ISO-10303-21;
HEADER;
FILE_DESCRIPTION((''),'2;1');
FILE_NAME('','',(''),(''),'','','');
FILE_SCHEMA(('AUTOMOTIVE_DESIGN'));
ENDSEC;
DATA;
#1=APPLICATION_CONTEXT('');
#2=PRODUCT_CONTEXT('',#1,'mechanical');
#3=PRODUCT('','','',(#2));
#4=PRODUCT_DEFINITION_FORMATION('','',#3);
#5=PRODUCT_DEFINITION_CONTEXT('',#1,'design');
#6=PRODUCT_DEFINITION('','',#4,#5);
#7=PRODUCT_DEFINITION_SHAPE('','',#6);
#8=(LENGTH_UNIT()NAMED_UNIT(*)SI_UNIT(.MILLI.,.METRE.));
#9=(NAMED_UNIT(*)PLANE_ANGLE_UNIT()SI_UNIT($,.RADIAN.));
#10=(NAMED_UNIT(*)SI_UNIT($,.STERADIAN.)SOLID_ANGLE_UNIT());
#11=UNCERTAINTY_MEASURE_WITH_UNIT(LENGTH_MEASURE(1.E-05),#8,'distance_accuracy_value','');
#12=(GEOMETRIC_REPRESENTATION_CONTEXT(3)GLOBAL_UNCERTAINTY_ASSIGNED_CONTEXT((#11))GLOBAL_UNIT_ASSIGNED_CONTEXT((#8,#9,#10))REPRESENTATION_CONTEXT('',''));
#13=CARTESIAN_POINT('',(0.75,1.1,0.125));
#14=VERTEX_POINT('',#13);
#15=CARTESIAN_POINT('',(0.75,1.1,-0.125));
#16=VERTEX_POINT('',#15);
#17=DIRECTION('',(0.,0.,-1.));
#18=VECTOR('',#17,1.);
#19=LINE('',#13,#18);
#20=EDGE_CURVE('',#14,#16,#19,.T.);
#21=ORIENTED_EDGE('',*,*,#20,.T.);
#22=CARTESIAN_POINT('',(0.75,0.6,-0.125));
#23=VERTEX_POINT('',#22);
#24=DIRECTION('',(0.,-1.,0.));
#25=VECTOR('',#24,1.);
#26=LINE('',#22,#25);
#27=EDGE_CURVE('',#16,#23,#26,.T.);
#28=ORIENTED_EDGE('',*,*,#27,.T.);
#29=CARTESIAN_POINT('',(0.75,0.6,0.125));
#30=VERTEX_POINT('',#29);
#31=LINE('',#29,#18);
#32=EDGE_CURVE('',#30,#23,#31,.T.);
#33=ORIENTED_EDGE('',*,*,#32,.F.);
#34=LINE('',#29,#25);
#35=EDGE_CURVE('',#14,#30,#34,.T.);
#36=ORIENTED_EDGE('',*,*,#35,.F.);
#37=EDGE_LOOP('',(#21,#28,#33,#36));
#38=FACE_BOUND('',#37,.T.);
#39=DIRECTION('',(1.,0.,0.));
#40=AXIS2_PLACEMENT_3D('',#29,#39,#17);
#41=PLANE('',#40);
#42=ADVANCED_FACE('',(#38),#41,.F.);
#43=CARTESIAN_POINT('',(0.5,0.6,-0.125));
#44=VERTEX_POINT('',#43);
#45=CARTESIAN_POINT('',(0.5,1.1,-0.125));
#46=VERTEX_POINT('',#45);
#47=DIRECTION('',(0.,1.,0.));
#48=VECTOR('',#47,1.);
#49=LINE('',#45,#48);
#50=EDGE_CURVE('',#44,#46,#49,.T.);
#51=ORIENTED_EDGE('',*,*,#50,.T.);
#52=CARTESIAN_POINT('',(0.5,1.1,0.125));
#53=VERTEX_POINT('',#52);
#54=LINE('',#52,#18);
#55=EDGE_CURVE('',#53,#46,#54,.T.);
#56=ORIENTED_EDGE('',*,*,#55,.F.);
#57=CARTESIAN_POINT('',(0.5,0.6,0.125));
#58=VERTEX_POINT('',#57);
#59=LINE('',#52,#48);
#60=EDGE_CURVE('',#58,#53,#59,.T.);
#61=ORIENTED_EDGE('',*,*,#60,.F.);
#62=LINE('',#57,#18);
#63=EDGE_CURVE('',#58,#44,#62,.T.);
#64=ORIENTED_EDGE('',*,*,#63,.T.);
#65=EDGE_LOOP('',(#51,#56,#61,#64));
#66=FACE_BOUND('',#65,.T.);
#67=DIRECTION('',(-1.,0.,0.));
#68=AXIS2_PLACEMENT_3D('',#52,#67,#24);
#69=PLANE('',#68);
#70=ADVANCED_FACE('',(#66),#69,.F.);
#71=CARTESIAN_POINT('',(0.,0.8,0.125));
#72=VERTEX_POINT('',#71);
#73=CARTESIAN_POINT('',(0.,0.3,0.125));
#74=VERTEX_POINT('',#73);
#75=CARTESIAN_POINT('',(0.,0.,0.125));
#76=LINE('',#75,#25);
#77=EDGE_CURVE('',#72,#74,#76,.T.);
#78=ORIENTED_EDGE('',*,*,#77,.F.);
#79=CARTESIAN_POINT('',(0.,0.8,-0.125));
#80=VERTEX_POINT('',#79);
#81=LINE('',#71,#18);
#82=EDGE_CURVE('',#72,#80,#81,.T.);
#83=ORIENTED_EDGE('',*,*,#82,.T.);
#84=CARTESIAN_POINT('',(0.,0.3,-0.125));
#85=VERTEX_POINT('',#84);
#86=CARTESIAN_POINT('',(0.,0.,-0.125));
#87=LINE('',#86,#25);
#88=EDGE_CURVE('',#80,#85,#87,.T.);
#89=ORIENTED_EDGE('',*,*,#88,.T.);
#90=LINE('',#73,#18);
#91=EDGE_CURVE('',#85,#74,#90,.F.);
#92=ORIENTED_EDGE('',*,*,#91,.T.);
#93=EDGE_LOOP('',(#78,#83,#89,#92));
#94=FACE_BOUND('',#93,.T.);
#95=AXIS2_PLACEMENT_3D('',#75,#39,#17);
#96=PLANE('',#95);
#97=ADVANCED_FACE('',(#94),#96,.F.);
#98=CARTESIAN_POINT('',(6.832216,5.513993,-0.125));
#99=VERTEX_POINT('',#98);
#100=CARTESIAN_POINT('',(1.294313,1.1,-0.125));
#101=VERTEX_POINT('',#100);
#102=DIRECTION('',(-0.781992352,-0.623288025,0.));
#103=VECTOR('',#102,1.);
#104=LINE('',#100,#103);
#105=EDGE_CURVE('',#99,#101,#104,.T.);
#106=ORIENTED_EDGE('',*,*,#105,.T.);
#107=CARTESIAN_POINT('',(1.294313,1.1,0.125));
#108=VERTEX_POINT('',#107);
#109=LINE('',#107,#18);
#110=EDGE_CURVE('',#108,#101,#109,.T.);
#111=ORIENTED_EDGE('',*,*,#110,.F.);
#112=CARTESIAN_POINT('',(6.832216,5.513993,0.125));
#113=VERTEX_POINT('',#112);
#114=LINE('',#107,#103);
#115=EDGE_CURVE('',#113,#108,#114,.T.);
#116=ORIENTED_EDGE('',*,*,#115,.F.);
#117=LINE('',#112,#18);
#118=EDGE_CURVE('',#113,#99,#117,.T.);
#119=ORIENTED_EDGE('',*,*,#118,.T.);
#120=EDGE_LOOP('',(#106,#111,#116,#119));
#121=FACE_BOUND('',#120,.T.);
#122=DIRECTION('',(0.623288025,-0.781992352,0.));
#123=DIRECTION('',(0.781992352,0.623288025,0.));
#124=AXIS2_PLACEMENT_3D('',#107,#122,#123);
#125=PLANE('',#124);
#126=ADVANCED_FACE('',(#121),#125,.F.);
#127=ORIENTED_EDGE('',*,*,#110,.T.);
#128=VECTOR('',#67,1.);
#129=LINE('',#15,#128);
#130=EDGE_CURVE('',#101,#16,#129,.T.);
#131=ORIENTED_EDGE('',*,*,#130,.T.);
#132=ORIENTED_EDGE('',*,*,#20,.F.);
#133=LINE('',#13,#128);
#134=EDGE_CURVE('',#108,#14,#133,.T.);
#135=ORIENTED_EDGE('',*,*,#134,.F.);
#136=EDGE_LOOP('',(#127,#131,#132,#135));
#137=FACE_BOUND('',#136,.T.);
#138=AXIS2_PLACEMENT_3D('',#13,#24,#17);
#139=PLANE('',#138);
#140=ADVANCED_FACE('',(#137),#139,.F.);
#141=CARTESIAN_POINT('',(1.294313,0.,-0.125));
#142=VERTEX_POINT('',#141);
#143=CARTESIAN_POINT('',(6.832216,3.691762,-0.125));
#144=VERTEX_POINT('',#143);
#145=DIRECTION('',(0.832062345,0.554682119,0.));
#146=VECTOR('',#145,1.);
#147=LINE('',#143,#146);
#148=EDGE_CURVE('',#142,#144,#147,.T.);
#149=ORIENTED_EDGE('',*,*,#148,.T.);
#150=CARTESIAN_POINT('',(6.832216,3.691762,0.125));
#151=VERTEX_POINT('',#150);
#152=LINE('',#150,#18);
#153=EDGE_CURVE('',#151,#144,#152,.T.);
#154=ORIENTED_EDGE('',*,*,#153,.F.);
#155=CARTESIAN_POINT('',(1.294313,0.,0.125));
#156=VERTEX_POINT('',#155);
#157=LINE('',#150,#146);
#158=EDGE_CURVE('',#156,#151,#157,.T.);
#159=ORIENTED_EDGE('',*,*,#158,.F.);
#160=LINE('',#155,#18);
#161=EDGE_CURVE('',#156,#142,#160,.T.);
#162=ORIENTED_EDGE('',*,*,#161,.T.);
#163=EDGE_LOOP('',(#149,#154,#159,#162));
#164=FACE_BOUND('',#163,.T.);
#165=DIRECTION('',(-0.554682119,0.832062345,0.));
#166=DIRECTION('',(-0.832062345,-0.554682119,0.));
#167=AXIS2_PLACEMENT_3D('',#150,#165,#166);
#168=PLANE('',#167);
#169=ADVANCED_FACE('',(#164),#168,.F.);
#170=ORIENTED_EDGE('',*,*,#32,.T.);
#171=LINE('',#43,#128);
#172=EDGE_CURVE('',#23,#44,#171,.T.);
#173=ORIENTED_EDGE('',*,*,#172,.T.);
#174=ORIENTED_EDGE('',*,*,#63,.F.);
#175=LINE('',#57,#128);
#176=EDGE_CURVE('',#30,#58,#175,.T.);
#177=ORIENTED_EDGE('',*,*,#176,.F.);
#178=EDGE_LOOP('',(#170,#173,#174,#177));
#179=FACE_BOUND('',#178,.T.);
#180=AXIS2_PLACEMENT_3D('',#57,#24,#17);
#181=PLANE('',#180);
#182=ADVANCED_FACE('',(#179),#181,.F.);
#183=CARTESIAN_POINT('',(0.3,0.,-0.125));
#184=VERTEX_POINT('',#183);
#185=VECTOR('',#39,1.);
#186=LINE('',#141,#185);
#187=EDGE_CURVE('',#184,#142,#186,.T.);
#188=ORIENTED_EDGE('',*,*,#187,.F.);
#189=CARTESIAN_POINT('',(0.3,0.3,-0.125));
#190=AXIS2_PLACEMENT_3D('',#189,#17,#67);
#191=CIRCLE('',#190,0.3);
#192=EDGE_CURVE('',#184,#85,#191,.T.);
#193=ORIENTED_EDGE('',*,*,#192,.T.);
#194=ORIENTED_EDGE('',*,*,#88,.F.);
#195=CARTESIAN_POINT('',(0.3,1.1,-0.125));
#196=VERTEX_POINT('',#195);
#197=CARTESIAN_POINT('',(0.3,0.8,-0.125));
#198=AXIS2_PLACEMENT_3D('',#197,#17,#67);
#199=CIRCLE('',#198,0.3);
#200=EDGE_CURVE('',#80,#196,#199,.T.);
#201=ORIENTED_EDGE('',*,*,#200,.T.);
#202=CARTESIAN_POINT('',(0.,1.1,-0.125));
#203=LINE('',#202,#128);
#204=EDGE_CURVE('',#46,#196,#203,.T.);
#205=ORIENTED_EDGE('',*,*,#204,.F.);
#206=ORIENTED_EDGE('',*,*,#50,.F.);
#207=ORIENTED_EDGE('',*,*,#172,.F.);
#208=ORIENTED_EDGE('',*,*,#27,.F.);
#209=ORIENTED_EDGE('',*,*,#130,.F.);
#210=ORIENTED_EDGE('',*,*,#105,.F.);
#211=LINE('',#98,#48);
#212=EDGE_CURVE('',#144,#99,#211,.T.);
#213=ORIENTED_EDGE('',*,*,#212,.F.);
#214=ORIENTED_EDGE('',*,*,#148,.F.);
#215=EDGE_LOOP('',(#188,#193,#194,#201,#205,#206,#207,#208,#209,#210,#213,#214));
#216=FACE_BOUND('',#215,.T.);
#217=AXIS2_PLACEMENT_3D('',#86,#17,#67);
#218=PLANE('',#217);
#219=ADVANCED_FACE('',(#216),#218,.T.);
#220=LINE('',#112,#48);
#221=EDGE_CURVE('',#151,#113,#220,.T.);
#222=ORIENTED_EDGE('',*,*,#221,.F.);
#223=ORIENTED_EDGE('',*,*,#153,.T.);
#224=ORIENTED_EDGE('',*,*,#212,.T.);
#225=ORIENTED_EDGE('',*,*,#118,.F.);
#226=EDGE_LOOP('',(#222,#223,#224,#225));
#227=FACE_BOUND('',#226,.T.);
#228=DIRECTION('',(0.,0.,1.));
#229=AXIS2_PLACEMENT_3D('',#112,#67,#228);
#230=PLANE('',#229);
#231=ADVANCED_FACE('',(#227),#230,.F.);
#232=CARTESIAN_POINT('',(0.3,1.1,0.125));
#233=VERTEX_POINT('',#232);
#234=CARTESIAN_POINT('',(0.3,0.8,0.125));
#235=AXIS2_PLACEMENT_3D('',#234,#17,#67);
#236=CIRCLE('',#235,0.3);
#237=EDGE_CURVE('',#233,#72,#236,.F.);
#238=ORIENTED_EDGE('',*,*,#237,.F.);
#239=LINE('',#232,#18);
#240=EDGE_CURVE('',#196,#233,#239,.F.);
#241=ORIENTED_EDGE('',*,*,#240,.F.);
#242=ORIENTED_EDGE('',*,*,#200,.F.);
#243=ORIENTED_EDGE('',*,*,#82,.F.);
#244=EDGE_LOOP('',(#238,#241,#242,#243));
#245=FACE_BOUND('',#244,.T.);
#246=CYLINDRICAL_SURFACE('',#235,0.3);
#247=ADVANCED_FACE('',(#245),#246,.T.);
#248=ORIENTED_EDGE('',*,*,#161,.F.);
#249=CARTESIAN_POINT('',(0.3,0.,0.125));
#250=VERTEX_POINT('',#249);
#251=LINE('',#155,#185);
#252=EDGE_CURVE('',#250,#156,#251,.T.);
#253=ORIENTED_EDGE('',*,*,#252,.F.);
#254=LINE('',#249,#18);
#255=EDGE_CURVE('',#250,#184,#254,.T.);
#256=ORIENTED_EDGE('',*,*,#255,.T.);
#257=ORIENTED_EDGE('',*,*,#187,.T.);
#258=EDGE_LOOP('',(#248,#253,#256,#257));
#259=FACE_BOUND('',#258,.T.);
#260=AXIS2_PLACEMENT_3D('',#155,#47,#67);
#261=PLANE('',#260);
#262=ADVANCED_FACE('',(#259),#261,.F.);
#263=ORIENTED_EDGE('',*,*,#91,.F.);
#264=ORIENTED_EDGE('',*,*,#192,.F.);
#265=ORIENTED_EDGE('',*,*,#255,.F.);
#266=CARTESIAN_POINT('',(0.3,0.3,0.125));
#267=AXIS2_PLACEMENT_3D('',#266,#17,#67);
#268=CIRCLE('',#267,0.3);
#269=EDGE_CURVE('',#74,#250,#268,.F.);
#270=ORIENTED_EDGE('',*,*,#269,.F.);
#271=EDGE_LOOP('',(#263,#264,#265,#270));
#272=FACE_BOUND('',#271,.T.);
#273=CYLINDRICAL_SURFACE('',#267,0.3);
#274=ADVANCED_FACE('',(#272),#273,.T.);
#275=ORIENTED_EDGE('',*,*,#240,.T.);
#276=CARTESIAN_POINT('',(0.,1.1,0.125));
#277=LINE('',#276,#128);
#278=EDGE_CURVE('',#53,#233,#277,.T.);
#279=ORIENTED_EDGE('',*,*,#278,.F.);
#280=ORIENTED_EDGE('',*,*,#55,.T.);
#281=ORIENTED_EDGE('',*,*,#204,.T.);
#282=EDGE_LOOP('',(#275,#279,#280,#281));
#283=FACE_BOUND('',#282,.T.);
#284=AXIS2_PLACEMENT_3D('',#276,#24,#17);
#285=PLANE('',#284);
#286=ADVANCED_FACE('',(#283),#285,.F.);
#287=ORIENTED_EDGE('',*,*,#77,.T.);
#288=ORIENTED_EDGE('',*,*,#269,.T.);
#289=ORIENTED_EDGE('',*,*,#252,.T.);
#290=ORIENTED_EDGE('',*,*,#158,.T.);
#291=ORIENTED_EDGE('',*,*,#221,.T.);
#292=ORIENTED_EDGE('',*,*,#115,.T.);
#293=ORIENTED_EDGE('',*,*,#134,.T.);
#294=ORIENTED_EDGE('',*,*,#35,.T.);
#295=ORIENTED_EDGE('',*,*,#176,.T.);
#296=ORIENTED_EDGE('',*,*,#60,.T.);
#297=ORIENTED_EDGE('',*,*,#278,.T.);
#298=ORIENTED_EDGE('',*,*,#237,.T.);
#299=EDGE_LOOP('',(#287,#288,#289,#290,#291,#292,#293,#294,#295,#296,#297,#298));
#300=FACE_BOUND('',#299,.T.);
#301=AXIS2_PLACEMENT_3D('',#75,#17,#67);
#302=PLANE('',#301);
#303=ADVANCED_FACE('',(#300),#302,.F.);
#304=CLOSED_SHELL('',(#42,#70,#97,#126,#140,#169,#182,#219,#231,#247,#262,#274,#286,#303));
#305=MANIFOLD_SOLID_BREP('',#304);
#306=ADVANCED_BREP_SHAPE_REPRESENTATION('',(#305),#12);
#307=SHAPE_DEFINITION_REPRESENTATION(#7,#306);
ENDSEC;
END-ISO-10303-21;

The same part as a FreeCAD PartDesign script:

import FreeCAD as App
import Part
import Sketcher
from FreeCAD import Vector


def edges_at(feature, points):
    """Names of the edges that pass closest to the given points."""
    edges = feature.Shape.Edges
    near = lambda p: min(range(len(edges)), key=lambda i: edges[i].distToShape(Part.Vertex(*p))[0])
    return sorted({f"Edge{near(p) + 1}" for p in points})

doc = App.newDocument("Part")
body = doc.addObject("PartDesign::Body", "Body")

# Sketch on XY plane
sketch1 = body.newObject("Sketcher::SketchObject", "Sketch")
sketch1.AttachmentSupport = (doc.getObject("XY_Plane"), [""])
sketch1.MapMode = "FlatFace"
sketch1.addGeometry([
    Part.LineSegment(Vector(0, 1.1, 0), Vector(0, 0, 0)),  # 0
    Part.LineSegment(Vector(0, 0, 0), Vector(1.29, 0, 0)),  # 1
    Part.LineSegment(Vector(1.29, 0, 0), Vector(6.83, 3.69, 0)),  # 2
    Part.LineSegment(Vector(6.83, 3.69, 0), Vector(6.83, 5.51, 0)),  # 3
    Part.LineSegment(Vector(6.83, 5.51, 0), Vector(1.29, 1.1, 0)),  # 4
    Part.LineSegment(Vector(1.29, 1.1, 0), Vector(0.75, 1.1, 0)),  # 5
    Part.LineSegment(Vector(0.75, 1.1, 0), Vector(0.75, 0.6, 0)),  # 6
    Part.LineSegment(Vector(0.75, 0.6, 0), Vector(0.5, 0.6, 0)),  # 7
    Part.LineSegment(Vector(0.5, 0.6, 0), Vector(0.5, 1.1, 0)),  # 8
    Part.LineSegment(Vector(0.5, 1.1, 0), Vector(0, 1.1, 0)),  # 9
], False)
sketch1.addConstraint([
    Sketcher.Constraint("Coincident", 0, 2, 1, 1),
    Sketcher.Constraint("Coincident", 1, 2, 2, 1),
    Sketcher.Constraint("Coincident", 2, 2, 3, 1),
    Sketcher.Constraint("Coincident", 3, 2, 4, 1),
    Sketcher.Constraint("Coincident", 4, 2, 5, 1),
    Sketcher.Constraint("Coincident", 5, 2, 6, 1),
    Sketcher.Constraint("Coincident", 6, 2, 7, 1),
    Sketcher.Constraint("Coincident", 7, 2, 8, 1),
    Sketcher.Constraint("Coincident", 8, 2, 9, 1),
    Sketcher.Constraint("Coincident", 9, 2, 0, 1),
    Sketcher.Constraint("Vertical", 0),
    Sketcher.Constraint("Horizontal", 1),
    Sketcher.Constraint("Vertical", 3),
    Sketcher.Constraint("Horizontal", 5),
    Sketcher.Constraint("Vertical", 6),
    Sketcher.Constraint("Horizontal", 7),
    Sketcher.Constraint("Vertical", 8),
    Sketcher.Constraint("Horizontal", 9),
    Sketcher.Constraint("Coincident", 0, 2, -1, 1),
    Sketcher.Constraint("Horizontal", 5, 2, 8, 2),
    Sketcher.Constraint("Vertical", 1, 2, 4, 2),
    Sketcher.Constraint("Equal", 9, 6),
    Sketcher.Constraint("DistanceX", 9, 2, 9, 1, 0.5),
    Sketcher.Constraint("DistanceY", 0, 2, 0, 1, 1.1),
    Sketcher.Constraint("DistanceX", 7, 2, 7, 1, 0.25),
    Sketcher.Constraint("DistanceY", 3, 1, 3, 2, 1.822231),
    Sketcher.Constraint("DistanceX", 1, 1, 1, 2, 1.294313),
    Sketcher.Constraint("DistanceY", -1, 1, 2, 2, 3.691762),
    Sketcher.Constraint("Distance", 2, 6.655635),
])
pad1 = body.newObject("PartDesign::Pad", "Pad")
pad1.Profile = sketch1
pad1.Length = 0.25
pad1.Midplane = True
doc.recompute()

fillet = body.newObject("PartDesign::Fillet", "Fillet")
fillet.Base = (pad1, edges_at(pad1, [(0, 0, 0), (0, 1.1, 0)]))
fillet.Radius = 0.3

doc.recompute()
